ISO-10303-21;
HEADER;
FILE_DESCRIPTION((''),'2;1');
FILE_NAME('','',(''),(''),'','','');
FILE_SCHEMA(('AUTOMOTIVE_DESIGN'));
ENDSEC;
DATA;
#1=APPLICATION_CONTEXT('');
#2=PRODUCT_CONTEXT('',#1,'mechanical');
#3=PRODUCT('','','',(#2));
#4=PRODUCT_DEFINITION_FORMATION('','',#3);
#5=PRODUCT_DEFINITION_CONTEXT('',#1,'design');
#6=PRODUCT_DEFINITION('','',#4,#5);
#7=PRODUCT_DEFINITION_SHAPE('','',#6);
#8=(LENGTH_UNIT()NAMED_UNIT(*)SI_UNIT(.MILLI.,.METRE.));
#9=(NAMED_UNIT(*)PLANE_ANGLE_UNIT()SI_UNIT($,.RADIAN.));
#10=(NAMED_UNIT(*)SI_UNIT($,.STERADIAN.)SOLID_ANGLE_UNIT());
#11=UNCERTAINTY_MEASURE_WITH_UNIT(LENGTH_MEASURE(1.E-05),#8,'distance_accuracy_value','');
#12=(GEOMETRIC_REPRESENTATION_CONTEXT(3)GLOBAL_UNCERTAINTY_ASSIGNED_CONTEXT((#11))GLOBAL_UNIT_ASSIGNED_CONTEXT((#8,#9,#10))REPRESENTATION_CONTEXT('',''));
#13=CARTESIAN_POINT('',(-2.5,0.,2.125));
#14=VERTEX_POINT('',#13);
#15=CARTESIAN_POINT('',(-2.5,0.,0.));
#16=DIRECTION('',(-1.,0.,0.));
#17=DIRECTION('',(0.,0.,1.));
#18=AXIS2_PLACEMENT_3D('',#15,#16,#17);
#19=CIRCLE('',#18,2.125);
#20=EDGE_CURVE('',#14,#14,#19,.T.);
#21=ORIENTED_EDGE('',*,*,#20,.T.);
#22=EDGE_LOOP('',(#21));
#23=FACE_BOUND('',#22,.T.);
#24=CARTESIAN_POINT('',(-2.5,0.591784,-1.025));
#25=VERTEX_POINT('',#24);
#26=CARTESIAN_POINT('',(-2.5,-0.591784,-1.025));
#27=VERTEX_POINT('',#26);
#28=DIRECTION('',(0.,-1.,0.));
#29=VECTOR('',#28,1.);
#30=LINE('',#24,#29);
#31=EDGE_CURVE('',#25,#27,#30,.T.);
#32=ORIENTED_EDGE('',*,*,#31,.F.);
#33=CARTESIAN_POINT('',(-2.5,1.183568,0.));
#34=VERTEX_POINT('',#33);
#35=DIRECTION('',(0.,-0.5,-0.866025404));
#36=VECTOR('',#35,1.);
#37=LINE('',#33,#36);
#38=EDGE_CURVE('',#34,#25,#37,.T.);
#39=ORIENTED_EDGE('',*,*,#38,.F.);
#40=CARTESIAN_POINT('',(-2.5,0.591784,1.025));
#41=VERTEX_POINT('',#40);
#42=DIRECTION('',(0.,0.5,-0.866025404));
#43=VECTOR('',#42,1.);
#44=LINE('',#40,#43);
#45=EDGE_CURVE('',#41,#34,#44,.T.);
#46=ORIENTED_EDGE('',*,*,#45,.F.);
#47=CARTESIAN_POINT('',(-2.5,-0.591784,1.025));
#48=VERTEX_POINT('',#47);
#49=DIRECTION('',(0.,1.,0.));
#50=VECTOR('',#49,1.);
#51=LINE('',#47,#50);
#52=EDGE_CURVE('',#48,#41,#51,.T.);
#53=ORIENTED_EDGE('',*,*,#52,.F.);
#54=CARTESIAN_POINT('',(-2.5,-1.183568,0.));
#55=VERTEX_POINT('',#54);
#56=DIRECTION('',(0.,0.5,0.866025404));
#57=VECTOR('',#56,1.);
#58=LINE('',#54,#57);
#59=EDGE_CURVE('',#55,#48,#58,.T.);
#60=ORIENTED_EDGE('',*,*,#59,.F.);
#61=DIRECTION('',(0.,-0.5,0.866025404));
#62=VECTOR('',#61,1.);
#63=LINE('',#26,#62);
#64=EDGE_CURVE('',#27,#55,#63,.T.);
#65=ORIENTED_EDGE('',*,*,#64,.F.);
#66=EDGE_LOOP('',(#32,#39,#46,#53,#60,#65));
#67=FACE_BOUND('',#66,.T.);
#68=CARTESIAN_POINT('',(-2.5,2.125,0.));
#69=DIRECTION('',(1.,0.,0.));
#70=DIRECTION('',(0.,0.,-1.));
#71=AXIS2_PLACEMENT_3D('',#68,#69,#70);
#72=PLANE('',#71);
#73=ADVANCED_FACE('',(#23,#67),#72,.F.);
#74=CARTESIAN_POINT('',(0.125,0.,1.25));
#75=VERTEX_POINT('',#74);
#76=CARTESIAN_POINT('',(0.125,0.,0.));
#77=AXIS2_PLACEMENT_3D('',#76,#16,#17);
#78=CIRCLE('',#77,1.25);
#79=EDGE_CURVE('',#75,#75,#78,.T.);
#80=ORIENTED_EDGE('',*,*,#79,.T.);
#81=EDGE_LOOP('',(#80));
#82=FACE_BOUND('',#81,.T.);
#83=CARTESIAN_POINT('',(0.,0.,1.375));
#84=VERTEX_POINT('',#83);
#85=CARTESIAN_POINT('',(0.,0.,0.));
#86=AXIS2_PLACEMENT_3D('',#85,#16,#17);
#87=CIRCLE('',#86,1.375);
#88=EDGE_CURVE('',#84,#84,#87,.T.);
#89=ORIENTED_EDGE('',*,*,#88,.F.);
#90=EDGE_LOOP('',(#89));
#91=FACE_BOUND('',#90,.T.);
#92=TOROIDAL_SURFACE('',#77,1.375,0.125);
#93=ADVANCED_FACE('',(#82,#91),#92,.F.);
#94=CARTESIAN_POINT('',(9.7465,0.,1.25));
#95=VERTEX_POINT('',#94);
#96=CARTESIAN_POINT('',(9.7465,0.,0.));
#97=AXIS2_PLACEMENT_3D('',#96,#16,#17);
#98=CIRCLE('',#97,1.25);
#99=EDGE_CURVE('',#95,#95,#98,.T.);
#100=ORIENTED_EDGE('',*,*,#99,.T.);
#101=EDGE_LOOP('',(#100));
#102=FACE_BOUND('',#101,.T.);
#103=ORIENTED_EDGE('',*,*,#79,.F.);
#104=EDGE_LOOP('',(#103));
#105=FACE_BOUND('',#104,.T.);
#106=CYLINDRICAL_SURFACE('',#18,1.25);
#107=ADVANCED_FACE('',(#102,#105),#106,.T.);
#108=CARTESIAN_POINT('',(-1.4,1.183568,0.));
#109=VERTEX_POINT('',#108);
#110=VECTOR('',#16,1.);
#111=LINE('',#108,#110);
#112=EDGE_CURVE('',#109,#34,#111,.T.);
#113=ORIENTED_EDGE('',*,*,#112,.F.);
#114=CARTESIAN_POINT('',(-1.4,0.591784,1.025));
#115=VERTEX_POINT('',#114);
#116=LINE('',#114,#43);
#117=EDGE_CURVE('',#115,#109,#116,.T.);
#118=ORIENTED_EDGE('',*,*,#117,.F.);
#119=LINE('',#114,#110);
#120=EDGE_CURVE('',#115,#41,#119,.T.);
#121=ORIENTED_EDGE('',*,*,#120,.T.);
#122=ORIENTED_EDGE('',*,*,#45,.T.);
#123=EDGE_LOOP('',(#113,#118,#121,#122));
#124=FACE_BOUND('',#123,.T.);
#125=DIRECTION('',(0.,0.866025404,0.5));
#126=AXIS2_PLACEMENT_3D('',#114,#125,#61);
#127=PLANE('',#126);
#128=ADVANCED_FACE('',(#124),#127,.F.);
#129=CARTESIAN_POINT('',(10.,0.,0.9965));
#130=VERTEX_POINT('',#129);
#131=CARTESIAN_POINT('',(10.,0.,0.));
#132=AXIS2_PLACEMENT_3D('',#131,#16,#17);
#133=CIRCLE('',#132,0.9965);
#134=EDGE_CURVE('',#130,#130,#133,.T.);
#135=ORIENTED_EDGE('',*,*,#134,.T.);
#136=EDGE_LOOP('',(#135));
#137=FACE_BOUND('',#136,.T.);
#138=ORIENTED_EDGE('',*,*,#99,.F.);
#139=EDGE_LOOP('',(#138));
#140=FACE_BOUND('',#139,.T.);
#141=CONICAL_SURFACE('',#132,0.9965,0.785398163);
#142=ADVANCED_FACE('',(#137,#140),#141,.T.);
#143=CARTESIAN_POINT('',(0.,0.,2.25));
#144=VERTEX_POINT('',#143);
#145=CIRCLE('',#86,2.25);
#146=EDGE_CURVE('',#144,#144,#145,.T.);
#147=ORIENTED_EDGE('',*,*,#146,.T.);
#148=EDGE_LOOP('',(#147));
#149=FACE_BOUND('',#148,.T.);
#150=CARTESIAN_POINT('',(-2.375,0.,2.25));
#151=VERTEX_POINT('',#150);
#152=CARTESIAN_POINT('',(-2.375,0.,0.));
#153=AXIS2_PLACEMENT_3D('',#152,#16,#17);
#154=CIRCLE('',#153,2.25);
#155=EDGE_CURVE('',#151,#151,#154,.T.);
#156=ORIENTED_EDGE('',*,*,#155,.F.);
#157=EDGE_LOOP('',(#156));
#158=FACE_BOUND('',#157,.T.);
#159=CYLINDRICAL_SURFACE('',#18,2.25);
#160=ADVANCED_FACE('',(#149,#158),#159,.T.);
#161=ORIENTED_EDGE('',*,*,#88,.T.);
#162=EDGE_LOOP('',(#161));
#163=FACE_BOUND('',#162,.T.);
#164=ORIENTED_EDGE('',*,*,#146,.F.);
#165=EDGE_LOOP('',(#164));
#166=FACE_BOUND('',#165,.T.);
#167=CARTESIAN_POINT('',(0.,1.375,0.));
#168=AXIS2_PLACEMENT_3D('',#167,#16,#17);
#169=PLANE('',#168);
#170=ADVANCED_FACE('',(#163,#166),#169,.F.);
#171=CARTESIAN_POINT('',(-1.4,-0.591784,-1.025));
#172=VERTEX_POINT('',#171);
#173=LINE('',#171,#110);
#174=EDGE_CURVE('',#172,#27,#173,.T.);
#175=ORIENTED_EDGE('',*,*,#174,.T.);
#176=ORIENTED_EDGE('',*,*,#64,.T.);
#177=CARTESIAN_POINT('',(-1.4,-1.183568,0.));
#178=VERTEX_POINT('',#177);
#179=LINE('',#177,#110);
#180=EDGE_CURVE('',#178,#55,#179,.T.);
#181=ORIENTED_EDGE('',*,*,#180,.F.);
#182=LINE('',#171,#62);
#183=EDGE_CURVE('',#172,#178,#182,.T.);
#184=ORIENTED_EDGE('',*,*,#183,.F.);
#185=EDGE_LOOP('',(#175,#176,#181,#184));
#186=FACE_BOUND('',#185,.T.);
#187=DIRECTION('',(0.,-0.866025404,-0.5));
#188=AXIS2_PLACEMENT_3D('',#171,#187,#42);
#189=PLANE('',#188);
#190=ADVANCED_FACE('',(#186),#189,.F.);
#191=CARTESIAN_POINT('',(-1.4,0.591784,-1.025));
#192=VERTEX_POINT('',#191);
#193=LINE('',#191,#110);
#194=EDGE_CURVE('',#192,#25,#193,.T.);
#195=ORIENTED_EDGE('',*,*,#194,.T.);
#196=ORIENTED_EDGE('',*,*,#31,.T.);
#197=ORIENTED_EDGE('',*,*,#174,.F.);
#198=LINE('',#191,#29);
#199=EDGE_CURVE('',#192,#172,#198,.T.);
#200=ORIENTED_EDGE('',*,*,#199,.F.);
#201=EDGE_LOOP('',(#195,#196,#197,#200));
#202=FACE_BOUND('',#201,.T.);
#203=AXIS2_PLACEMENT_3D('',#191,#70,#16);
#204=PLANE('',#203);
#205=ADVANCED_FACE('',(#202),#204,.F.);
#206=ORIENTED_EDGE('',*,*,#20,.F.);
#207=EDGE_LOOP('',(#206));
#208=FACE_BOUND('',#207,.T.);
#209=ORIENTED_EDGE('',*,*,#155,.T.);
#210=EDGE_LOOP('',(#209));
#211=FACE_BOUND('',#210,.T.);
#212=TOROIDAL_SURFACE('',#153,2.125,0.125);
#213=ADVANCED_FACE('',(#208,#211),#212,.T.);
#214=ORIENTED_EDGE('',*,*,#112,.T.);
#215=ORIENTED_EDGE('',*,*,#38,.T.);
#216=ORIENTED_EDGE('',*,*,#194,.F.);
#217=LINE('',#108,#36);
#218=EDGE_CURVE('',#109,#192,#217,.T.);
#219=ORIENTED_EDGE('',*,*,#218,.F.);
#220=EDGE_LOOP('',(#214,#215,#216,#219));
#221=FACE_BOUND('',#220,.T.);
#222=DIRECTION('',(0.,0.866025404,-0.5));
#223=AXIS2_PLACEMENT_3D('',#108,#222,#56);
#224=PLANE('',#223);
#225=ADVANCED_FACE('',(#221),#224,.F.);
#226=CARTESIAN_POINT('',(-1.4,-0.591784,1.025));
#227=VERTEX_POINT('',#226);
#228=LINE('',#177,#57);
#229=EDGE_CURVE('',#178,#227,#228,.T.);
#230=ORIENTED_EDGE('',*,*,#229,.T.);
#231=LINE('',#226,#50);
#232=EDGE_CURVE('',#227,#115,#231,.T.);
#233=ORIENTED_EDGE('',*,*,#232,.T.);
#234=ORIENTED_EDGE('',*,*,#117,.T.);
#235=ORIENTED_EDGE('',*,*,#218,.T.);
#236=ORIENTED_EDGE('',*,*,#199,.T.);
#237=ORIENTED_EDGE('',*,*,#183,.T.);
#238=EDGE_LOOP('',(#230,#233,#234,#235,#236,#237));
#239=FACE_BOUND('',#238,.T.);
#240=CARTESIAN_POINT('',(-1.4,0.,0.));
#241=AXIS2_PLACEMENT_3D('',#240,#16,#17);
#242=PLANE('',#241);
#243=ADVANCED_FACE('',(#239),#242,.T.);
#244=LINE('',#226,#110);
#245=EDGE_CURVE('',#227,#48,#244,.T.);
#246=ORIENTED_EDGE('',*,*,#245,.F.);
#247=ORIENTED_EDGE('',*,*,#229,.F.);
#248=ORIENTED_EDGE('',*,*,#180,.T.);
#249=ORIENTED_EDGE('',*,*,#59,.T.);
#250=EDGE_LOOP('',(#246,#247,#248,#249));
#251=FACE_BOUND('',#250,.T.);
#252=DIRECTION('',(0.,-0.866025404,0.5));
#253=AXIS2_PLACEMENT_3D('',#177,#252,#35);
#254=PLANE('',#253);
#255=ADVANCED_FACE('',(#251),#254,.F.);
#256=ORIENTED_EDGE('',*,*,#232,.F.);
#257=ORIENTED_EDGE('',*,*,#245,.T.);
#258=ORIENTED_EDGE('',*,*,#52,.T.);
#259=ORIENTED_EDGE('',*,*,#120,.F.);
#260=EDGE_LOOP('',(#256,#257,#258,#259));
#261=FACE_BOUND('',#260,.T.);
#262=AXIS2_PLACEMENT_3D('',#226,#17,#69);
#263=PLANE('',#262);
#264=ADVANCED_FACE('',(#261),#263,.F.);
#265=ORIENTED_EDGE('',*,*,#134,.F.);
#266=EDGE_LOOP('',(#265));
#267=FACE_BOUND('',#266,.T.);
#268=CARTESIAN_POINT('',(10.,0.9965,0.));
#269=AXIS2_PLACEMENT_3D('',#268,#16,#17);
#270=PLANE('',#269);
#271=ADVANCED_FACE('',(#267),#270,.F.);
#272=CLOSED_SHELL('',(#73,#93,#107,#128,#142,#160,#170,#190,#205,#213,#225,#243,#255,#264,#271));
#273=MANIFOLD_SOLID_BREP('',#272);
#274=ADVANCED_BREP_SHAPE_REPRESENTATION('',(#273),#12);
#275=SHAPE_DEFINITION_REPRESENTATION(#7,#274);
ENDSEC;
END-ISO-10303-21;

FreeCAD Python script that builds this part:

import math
import FreeCAD as App
import Part
import Sketcher

V = App.Vector
Q = App.Units.Quantity

doc = App.newDocument("Part")
params = doc.addObject("Spreadsheet::Sheet", "Params")
for row, (alias, value) in enumerate([
    ("sketch1_width", "12.5 mm"),
    ("revolution_angle", "360 deg"),
    ("pocket1_length", "1.1 mm"),
], start=1):
    params.set(f"A{row}", alias)
    params.set(f"B{row}", "=" + value)
    params.setAlias(f"B{row}", alias)

body = doc.addObject("PartDesign::Body", "Body")

sketch1 = body.newObject("Sketcher::SketchObject", "Sketch")
sketch1.AttachmentSupport = (doc.getObject("XY_Plane"), [""])
sketch1.MapMode = "FlatFace"
sketch1.addGeometry(Part.LineSegment(V(9.7465, 1.25, 0), V(0.125, 1.25, 0)), False)
sketch1.addGeometry(Part.ArcOfCircle(Part.Circle(V(0.125, 1.375, 0), V(0, 0, 1), 0.125), math.radians(180), math.radians(270)), False)
sketch1.addGeometry(Part.LineSegment(V(0, 1.375, 0), V(0, 2.25, 0)), False)
sketch1.addGeometry(Part.LineSegment(V(0, 2.25, 0), V(-2.375, 2.25, 0)), False)
sketch1.addGeometry(Part.ArcOfCircle(Part.Circle(V(-2.375, 2.125, 0), V(0, 0, 1), 0.125), math.radians(90), math.radians(180)), False)
sketch1.addGeometry(Part.LineSegment(V(-2.5, 2.125, 0), V(-2.5, 0, 0)), False)
sketch1.addGeometry(Part.LineSegment(V(-2.5, 0, 0), V(10, 0, 0)), False)
sketch1.addGeometry(Part.LineSegment(V(10, 0, 0), V(10, 0.9965, 0)), False)
sketch1.addGeometry(Part.LineSegment(V(10, 0.9965, 0), V(9.7465, 1.25, 0)), False)
sketch1.addConstraint(Sketcher.Constraint("Tangent", 0, 2, 1, 2))
sketch1.addConstraint(Sketcher.Constraint("Tangent", 1, 1, 2, 1))
sketch1.addConstraint(Sketcher.Constraint("Coincident", 2, 2, 3, 1))
sketch1.addConstraint(Sketcher.Constraint("Tangent", 3, 2, 4, 1))
sketch1.addConstraint(Sketcher.Constraint("Tangent", 4, 2, 5, 1))
sketch1.addConstraint(Sketcher.Constraint("Coincident", 5, 2, 6, 1))
sketch1.addConstraint(Sketcher.Constraint("Coincident", 6, 2, 7, 1))
sketch1.addConstraint(Sketcher.Constraint("Coincident", 7, 2, 8, 1))
sketch1.addConstraint(Sketcher.Constraint("Coincident", 8, 2, 0, 1))
sketch1.addConstraint(Sketcher.Constraint("Horizontal", 0))
sketch1.addConstraint(Sketcher.Constraint("Vertical", 2))
sketch1.addConstraint(Sketcher.Constraint("Horizontal", 3))
sketch1.addConstraint(Sketcher.Constraint("Vertical", 5))
sketch1.addConstraint(Sketcher.Constraint("Horizontal", 6))
sketch1.addConstraint(Sketcher.Constraint("Vertical", 7))
sketch1.addConstraint(Sketcher.Constraint("Equal", 1, 4))
sketch1.addConstraint(Sketcher.Constraint("PointOnObject", 1, 1, -2))
sketch1.addConstraint(Sketcher.Constraint("PointOnObject", 5, 2, -1))
sketch1.addConstraint(Sketcher.Constraint("Angle", 8, Q("135 deg")))
sketch1.addConstraint(Sketcher.Constraint("DistanceX", 6, 1, 6, 2, Q("12.5 mm")))
sketch1.addConstraint(Sketcher.Constraint("DistanceX", -1, 1, 6, 2, Q("10 mm")))
sketch1.addConstraint(Sketcher.Constraint("Radius", 1, Q("0.125 mm")))
sketch1.addConstraint(Sketcher.Constraint("DistanceY", 0, 2, 2, 2, Q("1 mm")))
sketch1.addConstraint(Sketcher.Constraint("DistanceY", 5, 2, 5, 1, Q("2.125 mm")))
sketch1.addConstraint(Sketcher.Constraint("DistanceX", 0, 2, 0, 1, Q("9.6215 mm")))
sketch1.setExpression("Constraints[19]", "Params.sketch1_width")
revolution = body.newObject("PartDesign::Revolution", "Revolution")
revolution.Profile = sketch1
revolution.ReferenceAxis = (sketch1, ["H_Axis"])
revolution.setExpression("Angle", "Params.revolution_angle")

sketch2 = body.newObject("Sketcher::SketchObject", "Sketch001")
sketch2.AttachmentSupport = (doc.getObject("YZ_Plane"), [""])
sketch2.MapMode = "FlatFace"
sketch2.AttachmentOffset = App.Placement(V(0, 0, -2.5), App.Rotation())
sketch2.addGeometry(Part.LineSegment(V(0.591784, 1.025, 0), V(1.183568, 0, 0)), False)
sketch2.addGeometry(Part.LineSegment(V(1.183568, 0, 0), V(0.591784, -1.025, 0)), False)
sketch2.addGeometry(Part.LineSegment(V(0.591784, -1.025, 0), V(-0.591784, -1.025, 0)), False)
sketch2.addGeometry(Part.LineSegment(V(-0.591784, -1.025, 0), V(-1.183568, 0, 0)), False)
sketch2.addGeometry(Part.LineSegment(V(-1.183568, 0, 0), V(-0.591784, 1.025, 0)), False)
sketch2.addGeometry(Part.LineSegment(V(-0.591784, 1.025, 0), V(0.591784, 1.025, 0)), False)
sketch2.addConstraint(Sketcher.Constraint("Coincident", 0, 2, 1, 1))
sketch2.addConstraint(Sketcher.Constraint("Coincident", 1, 2, 2, 1))
sketch2.addConstraint(Sketcher.Constraint("Coincident", 2, 2, 3, 1))
sketch2.addConstraint(Sketcher.Constraint("Coincident", 3, 2, 4, 1))
sketch2.addConstraint(Sketcher.Constraint("Coincident", 4, 2, 5, 1))
sketch2.addConstraint(Sketcher.Constraint("Coincident", 5, 2, 0, 1))
sketch2.addConstraint(Sketcher.Constraint("Horizontal", 2))
sketch2.addConstraint(Sketcher.Constraint("Horizontal", 5))
sketch2.addConstraint(Sketcher.Constraint("Symmetric", 0, 2, 3, 2, -1, 1))
sketch2.addConstraint(Sketcher.Constraint("Symmetric", 1, 2, 4, 2, -1, 1))
sketch2.addConstraint(Sketcher.Constraint("PointOnObject", 0, 2, -1))
sketch2.addConstraint(Sketcher.Constraint("Parallel", 0, 3))
sketch2.addConstraint(Sketcher.Constraint("Vertical", 2, 2, 4, 2))
sketch2.addConstraint(Sketcher.Constraint("Angle", 0, Q("-60 deg")))
sketch2.addConstraint(Sketcher.Constraint("DistanceY", 2, 2, 4, 2, Q("2.05 mm")))
sketch2.addConstraint(Sketcher.Constraint("DistanceX", 2, 2, 2, 1, Q("1.183568 mm")))
pocket1 = body.newObject("PartDesign::Pocket", "Pocket")
pocket1.Profile = sketch2
pocket1.setExpression("Length", "Params.pocket1_length")
pocket1.Reversed = True

doc.recompute()
